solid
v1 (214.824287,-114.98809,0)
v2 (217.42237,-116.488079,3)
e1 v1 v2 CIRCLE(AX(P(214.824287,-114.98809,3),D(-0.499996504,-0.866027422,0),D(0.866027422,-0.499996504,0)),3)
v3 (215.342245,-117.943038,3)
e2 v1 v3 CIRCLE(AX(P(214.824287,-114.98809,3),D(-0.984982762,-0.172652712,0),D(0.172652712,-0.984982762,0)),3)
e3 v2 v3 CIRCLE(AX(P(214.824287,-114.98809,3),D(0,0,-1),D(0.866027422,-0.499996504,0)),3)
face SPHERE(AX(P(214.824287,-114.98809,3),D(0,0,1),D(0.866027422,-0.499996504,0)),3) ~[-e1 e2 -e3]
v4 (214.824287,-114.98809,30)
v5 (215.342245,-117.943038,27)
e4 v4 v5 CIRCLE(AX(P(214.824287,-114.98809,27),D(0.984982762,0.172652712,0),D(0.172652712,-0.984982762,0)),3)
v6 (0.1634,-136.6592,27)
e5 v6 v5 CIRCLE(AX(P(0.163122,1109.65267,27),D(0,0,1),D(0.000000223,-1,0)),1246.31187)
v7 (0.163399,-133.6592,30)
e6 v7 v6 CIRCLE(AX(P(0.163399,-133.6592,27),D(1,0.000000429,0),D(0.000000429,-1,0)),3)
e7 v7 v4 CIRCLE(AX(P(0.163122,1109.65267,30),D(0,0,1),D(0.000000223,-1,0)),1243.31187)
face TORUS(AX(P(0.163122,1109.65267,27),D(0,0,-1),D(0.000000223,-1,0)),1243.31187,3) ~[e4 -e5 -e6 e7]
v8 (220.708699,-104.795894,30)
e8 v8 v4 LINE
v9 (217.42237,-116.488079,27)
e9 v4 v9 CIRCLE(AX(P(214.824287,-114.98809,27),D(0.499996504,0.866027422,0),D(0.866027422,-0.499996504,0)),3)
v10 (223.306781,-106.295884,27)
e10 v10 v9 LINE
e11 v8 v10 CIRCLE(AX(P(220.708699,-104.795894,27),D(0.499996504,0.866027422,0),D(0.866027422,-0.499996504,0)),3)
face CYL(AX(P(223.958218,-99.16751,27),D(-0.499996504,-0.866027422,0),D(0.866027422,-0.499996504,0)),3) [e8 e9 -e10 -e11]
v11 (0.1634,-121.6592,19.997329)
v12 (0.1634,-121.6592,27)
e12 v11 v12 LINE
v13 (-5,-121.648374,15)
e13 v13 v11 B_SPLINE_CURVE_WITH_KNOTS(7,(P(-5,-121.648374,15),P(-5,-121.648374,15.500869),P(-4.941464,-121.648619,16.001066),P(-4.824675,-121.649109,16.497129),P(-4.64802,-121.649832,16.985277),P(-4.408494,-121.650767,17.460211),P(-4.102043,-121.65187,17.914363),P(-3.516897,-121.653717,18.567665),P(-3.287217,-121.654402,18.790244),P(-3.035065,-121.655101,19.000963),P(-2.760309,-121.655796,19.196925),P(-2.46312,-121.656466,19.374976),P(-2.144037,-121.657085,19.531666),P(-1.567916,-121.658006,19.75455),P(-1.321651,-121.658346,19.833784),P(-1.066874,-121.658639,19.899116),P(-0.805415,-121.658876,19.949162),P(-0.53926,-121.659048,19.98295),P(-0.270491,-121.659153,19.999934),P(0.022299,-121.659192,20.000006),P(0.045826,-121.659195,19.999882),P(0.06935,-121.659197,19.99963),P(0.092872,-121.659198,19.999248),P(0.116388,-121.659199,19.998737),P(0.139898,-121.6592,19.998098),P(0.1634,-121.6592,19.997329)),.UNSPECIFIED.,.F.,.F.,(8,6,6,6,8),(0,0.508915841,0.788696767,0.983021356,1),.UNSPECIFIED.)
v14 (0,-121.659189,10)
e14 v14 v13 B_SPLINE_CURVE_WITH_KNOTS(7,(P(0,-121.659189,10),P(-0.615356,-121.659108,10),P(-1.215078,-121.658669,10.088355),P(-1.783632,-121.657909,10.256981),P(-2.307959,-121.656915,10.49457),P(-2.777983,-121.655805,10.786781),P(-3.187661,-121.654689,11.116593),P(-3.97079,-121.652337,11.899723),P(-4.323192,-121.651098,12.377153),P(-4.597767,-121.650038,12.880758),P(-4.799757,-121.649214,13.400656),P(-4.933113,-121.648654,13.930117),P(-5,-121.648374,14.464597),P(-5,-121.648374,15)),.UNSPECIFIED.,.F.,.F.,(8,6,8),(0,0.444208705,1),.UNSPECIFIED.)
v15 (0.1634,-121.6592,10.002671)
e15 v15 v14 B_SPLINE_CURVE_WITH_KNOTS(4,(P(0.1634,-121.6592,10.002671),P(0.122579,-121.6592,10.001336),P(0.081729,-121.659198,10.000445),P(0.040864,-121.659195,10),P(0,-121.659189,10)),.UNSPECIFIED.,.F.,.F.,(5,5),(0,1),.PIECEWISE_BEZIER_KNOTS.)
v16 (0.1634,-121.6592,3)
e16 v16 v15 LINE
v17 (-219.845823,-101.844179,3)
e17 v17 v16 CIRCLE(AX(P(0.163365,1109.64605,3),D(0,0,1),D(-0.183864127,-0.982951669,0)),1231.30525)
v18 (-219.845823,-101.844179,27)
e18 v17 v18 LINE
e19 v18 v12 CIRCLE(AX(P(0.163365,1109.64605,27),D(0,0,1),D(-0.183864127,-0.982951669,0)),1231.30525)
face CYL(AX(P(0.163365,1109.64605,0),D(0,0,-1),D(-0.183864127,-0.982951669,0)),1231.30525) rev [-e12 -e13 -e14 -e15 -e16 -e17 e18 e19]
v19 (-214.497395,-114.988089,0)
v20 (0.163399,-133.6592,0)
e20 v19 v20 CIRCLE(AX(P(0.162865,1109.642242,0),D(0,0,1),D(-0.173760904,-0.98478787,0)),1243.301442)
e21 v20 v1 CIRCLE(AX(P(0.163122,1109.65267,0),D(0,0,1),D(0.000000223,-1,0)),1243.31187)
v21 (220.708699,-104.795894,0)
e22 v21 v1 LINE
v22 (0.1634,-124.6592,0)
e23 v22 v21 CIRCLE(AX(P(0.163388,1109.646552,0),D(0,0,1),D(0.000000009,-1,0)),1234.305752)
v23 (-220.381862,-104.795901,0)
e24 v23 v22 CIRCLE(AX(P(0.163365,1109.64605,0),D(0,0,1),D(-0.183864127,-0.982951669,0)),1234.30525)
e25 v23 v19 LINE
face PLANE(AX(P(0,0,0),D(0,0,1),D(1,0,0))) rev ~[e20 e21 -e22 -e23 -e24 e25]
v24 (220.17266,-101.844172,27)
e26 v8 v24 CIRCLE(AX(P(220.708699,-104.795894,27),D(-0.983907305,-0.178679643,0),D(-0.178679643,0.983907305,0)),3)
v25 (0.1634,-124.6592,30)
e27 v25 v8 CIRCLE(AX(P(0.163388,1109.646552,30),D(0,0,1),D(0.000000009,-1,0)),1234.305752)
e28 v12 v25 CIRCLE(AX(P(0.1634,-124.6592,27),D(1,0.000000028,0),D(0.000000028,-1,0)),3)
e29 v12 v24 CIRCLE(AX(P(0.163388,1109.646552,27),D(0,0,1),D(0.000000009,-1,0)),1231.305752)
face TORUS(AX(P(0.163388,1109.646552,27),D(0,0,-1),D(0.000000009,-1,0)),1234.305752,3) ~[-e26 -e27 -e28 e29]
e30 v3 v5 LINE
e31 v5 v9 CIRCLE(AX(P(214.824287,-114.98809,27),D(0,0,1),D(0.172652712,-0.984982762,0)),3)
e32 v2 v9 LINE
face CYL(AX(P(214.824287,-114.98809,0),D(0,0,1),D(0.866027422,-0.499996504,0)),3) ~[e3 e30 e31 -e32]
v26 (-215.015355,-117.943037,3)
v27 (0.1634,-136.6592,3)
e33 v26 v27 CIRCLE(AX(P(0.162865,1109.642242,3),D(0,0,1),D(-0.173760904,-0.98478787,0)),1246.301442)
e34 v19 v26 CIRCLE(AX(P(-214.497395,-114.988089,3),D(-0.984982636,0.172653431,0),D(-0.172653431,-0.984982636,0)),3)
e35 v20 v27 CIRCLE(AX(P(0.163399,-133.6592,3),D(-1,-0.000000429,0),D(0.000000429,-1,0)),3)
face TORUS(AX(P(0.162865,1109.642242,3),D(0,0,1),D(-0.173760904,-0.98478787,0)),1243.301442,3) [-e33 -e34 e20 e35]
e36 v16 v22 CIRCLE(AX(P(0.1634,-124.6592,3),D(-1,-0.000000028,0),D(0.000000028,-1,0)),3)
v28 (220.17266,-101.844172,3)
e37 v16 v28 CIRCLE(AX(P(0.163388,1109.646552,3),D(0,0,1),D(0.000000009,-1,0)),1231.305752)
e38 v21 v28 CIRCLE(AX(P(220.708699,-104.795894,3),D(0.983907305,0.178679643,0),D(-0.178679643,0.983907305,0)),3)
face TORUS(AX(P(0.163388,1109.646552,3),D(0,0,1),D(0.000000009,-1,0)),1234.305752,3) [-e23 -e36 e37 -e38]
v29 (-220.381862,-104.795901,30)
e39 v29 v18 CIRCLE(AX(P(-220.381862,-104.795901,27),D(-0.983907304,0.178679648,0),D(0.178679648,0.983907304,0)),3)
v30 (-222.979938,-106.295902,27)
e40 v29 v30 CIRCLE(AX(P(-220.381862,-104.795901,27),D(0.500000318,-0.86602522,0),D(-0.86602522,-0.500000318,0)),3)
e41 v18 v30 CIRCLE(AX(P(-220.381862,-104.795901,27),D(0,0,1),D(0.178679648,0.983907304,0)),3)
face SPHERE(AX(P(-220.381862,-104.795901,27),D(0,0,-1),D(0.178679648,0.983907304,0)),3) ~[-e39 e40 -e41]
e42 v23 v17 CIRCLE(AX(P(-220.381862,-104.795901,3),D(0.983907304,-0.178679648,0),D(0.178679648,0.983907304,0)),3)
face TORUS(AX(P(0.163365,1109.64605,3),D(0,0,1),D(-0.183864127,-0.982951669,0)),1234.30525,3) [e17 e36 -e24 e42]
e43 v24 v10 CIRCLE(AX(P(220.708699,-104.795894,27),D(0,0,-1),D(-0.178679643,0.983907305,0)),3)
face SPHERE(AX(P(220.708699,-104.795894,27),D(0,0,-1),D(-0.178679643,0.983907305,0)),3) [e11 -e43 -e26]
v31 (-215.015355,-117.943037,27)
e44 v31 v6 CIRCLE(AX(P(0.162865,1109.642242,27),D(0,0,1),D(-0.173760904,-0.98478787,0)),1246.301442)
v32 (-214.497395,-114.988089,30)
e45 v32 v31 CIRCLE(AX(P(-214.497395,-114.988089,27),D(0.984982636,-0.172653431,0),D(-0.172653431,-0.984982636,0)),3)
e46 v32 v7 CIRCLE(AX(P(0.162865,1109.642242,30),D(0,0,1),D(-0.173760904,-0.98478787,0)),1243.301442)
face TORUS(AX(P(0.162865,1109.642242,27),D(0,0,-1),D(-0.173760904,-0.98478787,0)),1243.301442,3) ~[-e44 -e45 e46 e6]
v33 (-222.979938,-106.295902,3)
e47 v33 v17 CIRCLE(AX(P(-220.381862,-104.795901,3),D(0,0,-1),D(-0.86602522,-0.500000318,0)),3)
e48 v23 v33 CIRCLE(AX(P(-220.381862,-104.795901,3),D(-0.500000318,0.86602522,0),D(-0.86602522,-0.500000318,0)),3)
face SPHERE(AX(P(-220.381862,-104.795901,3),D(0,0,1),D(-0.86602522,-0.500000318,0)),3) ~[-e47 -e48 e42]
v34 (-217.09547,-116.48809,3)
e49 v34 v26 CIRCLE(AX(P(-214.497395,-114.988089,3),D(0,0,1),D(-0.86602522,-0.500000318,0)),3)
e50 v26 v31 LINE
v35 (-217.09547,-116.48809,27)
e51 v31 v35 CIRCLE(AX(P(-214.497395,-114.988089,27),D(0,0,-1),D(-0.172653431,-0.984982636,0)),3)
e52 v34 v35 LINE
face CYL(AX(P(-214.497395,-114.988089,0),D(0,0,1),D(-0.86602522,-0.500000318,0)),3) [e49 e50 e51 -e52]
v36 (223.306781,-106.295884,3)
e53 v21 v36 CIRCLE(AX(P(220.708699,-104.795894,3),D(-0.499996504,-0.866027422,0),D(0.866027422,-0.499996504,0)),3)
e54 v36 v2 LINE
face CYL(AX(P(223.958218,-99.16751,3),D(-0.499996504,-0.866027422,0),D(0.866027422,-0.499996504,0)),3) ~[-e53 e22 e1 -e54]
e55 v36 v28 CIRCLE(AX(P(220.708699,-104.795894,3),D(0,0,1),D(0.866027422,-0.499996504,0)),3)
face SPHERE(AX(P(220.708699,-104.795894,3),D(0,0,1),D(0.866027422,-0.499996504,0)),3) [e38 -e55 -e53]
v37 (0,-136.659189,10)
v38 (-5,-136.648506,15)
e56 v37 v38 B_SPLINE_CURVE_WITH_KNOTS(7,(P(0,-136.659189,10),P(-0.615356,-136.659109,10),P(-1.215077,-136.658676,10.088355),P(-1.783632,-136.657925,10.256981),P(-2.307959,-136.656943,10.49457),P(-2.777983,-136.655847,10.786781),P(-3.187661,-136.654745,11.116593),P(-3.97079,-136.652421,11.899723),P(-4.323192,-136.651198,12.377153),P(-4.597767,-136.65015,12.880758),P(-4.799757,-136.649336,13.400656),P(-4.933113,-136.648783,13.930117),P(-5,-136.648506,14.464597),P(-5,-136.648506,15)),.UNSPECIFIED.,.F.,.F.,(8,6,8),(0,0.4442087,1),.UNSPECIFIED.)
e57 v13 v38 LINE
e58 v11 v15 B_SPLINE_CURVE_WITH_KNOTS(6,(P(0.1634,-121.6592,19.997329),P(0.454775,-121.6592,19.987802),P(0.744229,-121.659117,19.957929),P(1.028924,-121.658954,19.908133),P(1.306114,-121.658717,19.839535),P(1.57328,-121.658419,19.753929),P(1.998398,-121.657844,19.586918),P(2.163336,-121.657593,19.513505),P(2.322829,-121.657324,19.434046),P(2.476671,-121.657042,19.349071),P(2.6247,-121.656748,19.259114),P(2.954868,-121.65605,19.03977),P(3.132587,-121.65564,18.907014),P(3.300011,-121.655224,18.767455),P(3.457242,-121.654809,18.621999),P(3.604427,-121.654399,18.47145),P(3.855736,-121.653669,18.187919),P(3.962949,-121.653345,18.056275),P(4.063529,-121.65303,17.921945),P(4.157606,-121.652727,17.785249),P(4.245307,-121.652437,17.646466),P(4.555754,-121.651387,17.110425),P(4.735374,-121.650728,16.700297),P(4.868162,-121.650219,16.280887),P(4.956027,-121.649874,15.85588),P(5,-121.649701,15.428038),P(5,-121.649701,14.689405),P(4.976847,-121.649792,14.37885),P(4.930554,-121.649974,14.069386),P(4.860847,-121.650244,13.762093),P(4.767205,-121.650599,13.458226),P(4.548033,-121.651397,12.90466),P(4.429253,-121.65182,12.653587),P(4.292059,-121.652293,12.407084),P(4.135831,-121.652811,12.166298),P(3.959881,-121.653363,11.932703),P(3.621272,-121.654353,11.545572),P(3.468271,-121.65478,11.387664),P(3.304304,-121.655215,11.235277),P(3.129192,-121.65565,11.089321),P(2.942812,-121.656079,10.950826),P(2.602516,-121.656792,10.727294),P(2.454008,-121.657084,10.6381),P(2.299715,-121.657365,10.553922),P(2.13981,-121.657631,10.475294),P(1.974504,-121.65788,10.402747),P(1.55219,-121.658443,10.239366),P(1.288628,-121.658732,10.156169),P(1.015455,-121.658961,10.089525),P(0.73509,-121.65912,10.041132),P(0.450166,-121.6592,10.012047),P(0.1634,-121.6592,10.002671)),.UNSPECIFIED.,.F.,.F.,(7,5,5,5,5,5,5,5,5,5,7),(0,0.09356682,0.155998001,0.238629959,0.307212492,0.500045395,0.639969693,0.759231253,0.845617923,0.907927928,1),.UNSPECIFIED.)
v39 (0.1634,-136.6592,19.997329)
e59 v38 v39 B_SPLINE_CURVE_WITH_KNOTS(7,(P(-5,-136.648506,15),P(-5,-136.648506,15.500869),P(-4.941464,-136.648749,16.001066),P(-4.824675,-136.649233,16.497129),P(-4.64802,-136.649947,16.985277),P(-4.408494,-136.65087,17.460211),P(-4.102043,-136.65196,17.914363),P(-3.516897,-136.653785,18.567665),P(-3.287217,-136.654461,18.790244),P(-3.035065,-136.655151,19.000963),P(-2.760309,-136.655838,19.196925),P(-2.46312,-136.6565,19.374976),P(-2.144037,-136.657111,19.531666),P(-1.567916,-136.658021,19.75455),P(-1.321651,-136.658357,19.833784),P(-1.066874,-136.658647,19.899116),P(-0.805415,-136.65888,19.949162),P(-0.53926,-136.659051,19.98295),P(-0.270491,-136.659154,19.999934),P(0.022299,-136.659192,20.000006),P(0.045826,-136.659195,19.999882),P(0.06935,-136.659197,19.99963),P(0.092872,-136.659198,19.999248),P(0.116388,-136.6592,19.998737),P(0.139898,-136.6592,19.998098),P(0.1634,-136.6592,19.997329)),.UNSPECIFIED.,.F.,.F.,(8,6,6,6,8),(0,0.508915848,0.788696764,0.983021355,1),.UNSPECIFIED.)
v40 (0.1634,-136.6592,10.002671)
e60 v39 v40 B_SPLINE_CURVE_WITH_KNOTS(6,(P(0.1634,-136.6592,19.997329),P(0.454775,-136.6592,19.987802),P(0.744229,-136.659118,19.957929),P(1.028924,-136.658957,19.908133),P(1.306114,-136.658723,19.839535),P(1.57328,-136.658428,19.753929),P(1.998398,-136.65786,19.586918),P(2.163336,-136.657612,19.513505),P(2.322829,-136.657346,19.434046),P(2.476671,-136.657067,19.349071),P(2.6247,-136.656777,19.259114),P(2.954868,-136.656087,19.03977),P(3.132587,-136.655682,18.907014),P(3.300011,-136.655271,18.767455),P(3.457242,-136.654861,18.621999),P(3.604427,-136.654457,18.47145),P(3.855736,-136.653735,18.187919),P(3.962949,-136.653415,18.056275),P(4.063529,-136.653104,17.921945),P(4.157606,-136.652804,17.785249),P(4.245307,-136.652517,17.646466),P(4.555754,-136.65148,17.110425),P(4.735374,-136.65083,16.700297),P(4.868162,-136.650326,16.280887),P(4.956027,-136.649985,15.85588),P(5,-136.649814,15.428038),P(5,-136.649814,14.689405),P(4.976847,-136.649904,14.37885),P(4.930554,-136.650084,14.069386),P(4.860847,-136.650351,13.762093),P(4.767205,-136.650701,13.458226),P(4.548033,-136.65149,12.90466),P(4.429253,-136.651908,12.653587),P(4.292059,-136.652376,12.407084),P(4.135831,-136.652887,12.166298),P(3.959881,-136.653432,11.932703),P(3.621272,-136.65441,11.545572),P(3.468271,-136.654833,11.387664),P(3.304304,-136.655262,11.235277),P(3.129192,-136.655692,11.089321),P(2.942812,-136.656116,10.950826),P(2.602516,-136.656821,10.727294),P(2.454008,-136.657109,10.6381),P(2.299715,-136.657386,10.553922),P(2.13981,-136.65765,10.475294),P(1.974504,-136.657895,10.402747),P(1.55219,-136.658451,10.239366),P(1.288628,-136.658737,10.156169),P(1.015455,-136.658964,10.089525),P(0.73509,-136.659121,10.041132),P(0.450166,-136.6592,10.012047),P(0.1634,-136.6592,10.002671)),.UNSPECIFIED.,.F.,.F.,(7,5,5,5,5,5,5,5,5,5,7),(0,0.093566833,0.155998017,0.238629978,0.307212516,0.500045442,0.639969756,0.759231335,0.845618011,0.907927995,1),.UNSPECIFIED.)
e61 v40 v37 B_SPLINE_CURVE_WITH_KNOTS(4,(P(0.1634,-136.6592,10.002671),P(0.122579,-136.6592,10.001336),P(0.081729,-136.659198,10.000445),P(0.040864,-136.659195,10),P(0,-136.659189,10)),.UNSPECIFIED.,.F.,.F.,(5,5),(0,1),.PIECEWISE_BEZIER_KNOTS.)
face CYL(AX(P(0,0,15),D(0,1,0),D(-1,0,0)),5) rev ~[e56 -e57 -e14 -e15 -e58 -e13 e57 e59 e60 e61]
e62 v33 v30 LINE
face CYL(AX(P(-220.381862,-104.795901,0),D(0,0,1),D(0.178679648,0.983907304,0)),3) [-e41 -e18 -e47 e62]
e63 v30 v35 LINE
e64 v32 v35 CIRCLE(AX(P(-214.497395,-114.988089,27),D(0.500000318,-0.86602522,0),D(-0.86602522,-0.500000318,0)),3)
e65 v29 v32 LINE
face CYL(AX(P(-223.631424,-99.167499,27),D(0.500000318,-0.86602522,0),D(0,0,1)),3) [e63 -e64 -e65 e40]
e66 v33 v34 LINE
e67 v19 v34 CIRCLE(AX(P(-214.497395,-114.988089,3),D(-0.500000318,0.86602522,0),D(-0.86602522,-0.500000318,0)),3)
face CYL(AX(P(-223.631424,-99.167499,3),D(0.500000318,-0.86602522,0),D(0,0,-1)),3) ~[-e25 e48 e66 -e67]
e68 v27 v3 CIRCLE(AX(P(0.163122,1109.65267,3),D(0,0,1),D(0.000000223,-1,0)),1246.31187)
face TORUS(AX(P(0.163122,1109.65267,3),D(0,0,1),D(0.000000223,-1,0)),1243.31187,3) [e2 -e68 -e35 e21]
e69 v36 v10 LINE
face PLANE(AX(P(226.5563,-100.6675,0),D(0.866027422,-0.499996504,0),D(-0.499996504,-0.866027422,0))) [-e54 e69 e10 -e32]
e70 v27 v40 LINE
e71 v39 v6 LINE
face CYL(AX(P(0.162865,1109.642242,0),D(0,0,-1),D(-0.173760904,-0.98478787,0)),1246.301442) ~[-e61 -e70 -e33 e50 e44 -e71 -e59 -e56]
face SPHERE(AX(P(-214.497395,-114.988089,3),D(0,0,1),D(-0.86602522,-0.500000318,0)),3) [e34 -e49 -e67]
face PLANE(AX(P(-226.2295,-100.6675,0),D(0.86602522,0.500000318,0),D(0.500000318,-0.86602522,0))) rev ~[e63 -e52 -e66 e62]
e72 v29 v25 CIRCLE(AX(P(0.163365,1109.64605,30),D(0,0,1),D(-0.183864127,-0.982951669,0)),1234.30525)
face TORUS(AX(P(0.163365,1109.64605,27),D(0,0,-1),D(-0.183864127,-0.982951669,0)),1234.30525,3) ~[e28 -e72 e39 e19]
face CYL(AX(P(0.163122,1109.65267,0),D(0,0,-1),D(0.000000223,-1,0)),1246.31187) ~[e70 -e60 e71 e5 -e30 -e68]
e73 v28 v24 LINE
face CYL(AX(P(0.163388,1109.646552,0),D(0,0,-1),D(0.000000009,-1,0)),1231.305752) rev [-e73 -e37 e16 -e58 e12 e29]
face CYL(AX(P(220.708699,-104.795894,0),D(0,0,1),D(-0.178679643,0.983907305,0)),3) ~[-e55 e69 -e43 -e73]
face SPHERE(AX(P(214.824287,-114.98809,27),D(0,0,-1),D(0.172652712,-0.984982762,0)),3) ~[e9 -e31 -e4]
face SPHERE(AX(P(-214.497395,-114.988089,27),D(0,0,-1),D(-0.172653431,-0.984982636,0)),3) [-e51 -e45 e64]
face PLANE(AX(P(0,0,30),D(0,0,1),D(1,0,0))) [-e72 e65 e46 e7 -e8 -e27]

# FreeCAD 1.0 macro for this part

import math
import FreeCAD as App
import Part
import Sketcher

V = App.Vector
Q = App.Units.Quantity

doc = App.newDocument("Part")
params = doc.addObject("Spreadsheet::Sheet", "Params")
for row, (alias, value) in enumerate([
    ("pad1_length", "30 mm"),
    ("fillet_radius", "3 mm"),
    ("sketch2_diameter", "10 mm"),
    ("pocket1_length", "300 mm"),
], start=1):
    params.set(f"A{row}", alias)
    params.set(f"B{row}", "=" + value)
    params.setAlias(f"B{row}", alias)

body = doc.addObject("PartDesign::Body", "Body")

sketch1 = body.newObject("Sketcher::SketchObject", "Sketch")
sketch1.AttachmentSupport = (doc.getObject("XY_Plane"), [""])
sketch1.MapMode = "FlatFace"
sketch1.addGeometry(Part.ArcOfCircle(Part.Circle(V(0.1634, 1109.6463, 0), V(0, 0, 1), 1231.305502), math.radians(-90), math.radians(-79.405085)), False)
sketch1.addGeometry(Part.ArcOfCircle(Part.Circle(V(0.1634, 1109.6463, 0), V(0, 0, 1), 1231.3055), math.radians(-100.594915), math.radians(-90)), False)
sketch1.addGeometry(Part.LineSegment(V(-226.2295, -100.6675, 0), V(-216.3956, -117.7003, 0)), False)
sketch1.addGeometry(Part.ArcOfCircle(Part.Circle(V(0.162865, 1109.642242, 0), V(0, 0, 1), 1246.301442), math.radians(-100.006558), math.radians(-89.999975)), False)
sketch1.addGeometry(Part.ArcOfCircle(Part.Circle(V(0.163122, 1109.65267, 0), V(0, 0, 1), 1246.31187), math.radians(-89.999987), math.radians(-79.993484)), False)
sketch1.addGeometry(Part.LineSegment(V(216.7225, -117.7003, 0), V(226.5563, -100.6675, 0)), False)
sketch1.addConstraint(Sketcher.Constraint("Coincident", 0, 1, 1, 2))
sketch1.addConstraint(Sketcher.Constraint("Coincident", 1, 1, 2, 1))
sketch1.addConstraint(Sketcher.Constraint("Coincident", 2, 2, 3, 1))
sketch1.addConstraint(Sketcher.Constraint("Coincident", 3, 2, 4, 1))
sketch1.addConstraint(Sketcher.Constraint("Coincident", 4, 2, 5, 1))
sketch1.addConstraint(Sketcher.Constraint("Coincident", 5, 2, 0, 2))
sketch1.addConstraint(Sketcher.Constraint("Coincident", 1, 3, 0, 3))
sketch1.addConstraint(Sketcher.Constraint("Vertical", 1, 3, 0, 1))
sketch1.addConstraint(Sketcher.Constraint("Vertical", 0, 1, 3, 2))
sketch1.addConstraint(Sketcher.Constraint("Equal", 2, 5))
sketch1.addConstraint(Sketcher.Constraint("DistanceY", 3, 2, 0, 1, Q("15 mm")))
sketch1.addConstraint(Sketcher.Constraint("Angle", 2, Q("-60 deg")))
sketch1.addConstraint(Sketcher.Constraint("Angle", 5, Q("60.0002 deg")))
sketch1.addConstraint(Sketcher.Constraint("Radius", 0, Q("1231.3055 mm")))
sketch1.addConstraint(Sketcher.Constraint("Radius", 3, Q("1246.3014 mm")))
sketch1.addConstraint(Sketcher.Constraint("Radius", 4, Q("1246.3119 mm")))
sketch1.addConstraint(Sketcher.Constraint("DistanceY", 0, 1, 2, 2, Q("3.959 mm")))
sketch1.addConstraint(Sketcher.Constraint("DistanceX", 2, 2, 0, 3, Q("216.559 mm")))
sketch1.addConstraint(Sketcher.Constraint("DistanceX", 2, 2, 5, 2, Q("442.952 mm")))
sketch1.addConstraint(Sketcher.Constraint("DistanceX", -1, 1, 0, 3, Q("0.1634 mm")))
sketch1.addConstraint(Sketcher.Constraint("DistanceY", -1, 1, 0, 3, Q("1109.6463 mm")))
pad1 = body.newObject("PartDesign::Pad", "Pad")
pad1.Profile = sketch1
pad1.setExpression("Length", "Params.pad1_length")
doc.recompute()

fillet = body.newObject("PartDesign::Fillet", "Fillet")
fillet.Base = (pad1, ["Edge1"])
fillet.UseAllEdges = True
fillet.setExpression("Radius", "Params.fillet_radius")

sketch2 = body.newObject("Sketcher::SketchObject", "Sketch001")
sketch2.AttachmentSupport = (doc.getObject("XZ_Plane"), [""])
sketch2.MapMode = "FlatFace"
sketch2.addGeometry(Part.Circle(V(0, 15, 0), V(0, 0, 1), 5), False)
sketch2.addConstraint(Sketcher.Constraint("PointOnObject", 0, 3, -2))
sketch2.addConstraint(Sketcher.Constraint("Diameter", 0, Q("10 mm")))
sketch2.addConstraint(Sketcher.Constraint("DistanceY", -1, 1, 0, 3, Q("15 mm")))
sketch2.setExpression("Constraints[1]", "Params.sketch2_diameter")
pocket1 = body.newObject("PartDesign::Pocket", "Pocket")
pocket1.Profile = sketch2
pocket1.setExpression("Length", "Params.pocket1_length")
pocket1.Reversed = True

doc.recompute()
